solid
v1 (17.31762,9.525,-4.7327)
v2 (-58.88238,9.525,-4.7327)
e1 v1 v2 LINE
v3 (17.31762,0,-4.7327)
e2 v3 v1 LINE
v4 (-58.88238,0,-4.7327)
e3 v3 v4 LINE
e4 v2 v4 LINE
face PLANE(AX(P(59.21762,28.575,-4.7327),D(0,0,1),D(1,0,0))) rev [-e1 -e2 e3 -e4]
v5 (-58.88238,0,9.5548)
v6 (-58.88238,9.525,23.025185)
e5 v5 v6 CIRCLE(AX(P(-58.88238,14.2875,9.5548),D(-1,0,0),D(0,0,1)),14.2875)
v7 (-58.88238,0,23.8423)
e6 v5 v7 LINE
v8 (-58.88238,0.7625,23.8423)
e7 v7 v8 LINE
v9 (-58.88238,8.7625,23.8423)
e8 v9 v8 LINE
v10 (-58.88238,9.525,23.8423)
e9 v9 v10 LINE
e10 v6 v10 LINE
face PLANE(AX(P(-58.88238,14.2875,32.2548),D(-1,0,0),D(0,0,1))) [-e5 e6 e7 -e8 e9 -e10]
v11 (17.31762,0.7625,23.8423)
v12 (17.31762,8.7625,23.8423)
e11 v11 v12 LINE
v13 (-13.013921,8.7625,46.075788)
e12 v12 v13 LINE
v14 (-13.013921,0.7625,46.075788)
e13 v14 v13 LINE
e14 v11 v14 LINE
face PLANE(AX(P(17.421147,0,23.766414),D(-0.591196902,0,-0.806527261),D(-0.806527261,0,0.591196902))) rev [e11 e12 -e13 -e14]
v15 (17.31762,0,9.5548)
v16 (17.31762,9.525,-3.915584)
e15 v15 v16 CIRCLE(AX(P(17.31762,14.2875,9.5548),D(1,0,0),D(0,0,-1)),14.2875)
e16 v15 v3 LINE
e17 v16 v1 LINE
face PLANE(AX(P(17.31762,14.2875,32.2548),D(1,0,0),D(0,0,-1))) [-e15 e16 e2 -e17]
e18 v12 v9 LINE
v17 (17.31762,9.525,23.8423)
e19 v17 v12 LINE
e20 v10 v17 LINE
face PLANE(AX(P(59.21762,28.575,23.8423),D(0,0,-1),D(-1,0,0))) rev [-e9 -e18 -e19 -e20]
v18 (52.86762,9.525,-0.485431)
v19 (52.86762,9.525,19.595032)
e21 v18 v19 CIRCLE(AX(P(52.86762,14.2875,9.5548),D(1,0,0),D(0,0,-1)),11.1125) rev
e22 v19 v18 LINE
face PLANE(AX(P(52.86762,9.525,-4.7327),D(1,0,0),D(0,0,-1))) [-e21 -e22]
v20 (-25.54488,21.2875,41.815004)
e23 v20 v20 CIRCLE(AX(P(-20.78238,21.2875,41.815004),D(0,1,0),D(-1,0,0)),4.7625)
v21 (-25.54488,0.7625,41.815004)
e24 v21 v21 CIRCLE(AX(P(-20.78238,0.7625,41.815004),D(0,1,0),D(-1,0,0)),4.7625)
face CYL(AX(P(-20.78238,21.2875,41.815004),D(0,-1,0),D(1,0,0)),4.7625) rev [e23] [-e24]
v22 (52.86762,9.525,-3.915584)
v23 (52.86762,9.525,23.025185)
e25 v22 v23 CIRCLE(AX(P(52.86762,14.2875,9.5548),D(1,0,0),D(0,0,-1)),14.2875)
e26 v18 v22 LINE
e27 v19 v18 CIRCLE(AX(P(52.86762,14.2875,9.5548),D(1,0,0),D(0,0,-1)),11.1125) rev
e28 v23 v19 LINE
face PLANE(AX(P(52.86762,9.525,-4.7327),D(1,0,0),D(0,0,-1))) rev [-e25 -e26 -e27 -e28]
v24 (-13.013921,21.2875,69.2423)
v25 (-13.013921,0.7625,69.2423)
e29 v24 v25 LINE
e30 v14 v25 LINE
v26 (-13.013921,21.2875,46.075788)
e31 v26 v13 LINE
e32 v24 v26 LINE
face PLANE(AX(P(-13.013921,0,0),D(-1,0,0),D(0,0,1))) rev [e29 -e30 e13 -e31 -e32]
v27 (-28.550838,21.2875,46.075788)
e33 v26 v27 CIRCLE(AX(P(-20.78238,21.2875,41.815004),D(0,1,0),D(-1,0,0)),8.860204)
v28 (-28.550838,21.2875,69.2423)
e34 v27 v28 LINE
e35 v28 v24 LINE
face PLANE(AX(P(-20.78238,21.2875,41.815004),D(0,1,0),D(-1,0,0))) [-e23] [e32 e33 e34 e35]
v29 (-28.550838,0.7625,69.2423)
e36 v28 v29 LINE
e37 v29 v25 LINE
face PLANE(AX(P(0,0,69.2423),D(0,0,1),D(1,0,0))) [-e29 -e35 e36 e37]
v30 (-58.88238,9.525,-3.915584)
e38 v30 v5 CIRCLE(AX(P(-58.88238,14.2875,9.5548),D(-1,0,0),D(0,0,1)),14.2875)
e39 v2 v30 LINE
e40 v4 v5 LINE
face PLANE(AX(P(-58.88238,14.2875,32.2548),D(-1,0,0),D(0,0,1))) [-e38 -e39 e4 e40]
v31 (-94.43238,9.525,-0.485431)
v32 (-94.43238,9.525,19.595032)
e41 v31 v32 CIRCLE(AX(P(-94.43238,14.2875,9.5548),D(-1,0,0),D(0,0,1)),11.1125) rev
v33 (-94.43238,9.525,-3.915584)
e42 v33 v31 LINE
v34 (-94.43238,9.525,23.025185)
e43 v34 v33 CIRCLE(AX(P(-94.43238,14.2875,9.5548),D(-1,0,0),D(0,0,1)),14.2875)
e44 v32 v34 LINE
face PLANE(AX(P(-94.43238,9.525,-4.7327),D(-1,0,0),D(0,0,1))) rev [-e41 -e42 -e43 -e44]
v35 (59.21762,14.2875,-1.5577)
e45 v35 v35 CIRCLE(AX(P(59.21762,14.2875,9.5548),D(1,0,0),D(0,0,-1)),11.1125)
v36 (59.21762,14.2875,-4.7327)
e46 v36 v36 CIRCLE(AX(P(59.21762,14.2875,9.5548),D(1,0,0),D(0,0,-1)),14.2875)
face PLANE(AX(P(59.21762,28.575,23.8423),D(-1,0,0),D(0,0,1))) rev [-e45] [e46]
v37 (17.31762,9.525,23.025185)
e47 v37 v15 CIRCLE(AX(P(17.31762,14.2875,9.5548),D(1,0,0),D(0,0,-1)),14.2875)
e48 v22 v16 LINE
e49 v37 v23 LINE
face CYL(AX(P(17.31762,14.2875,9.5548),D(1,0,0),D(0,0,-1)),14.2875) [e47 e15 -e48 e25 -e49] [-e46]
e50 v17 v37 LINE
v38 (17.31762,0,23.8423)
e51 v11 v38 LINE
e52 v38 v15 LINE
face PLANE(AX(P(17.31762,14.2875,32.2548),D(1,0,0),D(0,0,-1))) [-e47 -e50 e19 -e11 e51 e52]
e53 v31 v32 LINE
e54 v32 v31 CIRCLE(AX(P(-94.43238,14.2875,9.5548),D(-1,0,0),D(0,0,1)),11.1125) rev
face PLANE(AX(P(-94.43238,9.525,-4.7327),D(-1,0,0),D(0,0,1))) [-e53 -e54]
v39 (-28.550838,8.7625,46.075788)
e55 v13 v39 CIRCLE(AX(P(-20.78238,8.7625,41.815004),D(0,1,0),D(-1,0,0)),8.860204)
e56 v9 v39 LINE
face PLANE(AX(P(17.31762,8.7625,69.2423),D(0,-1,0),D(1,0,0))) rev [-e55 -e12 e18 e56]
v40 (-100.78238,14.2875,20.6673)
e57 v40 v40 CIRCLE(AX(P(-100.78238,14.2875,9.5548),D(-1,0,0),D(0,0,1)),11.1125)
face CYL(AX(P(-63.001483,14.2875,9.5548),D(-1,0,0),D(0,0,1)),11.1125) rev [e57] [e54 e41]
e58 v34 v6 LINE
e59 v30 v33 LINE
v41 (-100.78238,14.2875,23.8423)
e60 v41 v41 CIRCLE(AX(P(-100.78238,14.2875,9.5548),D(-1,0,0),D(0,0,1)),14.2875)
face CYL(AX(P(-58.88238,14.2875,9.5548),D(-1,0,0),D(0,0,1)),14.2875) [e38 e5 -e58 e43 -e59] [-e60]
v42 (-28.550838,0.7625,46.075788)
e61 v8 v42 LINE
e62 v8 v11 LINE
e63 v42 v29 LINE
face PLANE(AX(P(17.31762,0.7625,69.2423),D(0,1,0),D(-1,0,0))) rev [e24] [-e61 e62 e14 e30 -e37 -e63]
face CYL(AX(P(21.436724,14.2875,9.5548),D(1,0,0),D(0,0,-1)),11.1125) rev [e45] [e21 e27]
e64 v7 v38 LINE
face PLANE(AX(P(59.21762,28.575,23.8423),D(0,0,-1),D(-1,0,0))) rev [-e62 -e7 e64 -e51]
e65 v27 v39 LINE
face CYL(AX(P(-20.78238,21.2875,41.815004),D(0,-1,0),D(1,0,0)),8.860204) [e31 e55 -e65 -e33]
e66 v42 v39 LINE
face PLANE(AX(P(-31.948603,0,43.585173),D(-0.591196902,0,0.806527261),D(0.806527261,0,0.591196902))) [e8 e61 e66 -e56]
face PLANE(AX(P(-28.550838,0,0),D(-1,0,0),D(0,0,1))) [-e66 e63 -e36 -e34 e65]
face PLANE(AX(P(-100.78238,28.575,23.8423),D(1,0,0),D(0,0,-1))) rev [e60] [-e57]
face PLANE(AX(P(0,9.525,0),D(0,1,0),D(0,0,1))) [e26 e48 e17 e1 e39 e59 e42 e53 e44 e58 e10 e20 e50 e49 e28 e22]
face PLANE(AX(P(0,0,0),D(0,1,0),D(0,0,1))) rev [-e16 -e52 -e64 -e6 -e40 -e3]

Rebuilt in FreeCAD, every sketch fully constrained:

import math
import FreeCAD as App
import Part
import Sketcher
Q = App.Units.Quantity

doc = App.newDocument("Part")
params = doc.addObject("Spreadsheet::Sheet", "Params")
for row, (alias, value) in enumerate([
    ("sketch1_height", "1.125 in"),
    ("pad1_length", "1.125 in"),
    ("sketch2_height", "1.125 in"),
    ("pocket1_length", "0.75 in"),
    ("sketch3_width", "3 in"),
    ("pad2_length", "45.4 mm"),
    ("sketch5_diameter", "0.375 in"),
    ("pad3_length", "12.525 mm"),
    ("sketch6_diameter", "0.375 in"),
    ("sketch7_diameter", "1.125 in"),
    ("pocket4_length", "41.9 mm"),
    ("sketch8_diameter", "1.125 in"),
    ("pocket5_length", "41.9 mm"),
    ("sketch9_diameter", "0.875 in"),
    ("pocket6_length", "0.25 in"),
    ("sketch10_diameter", "0.875 in"),
    ("pocket7_length", "0.25 in"),
], start=1):
    params.set(f"A{row}", alias)
    params.set(f"B{row}", "=" + value)
    params.setAlias(f"B{row}", alias)

body = doc.addObject("PartDesign::Body", "Body")

sketch1 = body.newObject("Sketcher::SketchObject", "Sketch")
sketch1.AttachmentSupport = (doc.getObject("XZ_Plane"), [""])
sketch1.MapMode = "FlatFace"
sketch1.addGeometry(Part.LineSegment(App.Vector(-101, -5, 0), App.Vector(-101, 24, 0)), False)
sketch1.addGeometry(Part.LineSegment(App.Vector(-101, 24, 0), App.Vector(59, 24, 0)), False)
sketch1.addGeometry(Part.LineSegment(App.Vector(59, 24, 0), App.Vector(59, -5, 0)), False)
sketch1.addGeometry(Part.LineSegment(App.Vector(59, -5, 0), App.Vector(-101, -5, 0)), False)
sketch1.addConstraint(Sketcher.Constraint("Coincident", 0, 2, 1, 1))
sketch1.addConstraint(Sketcher.Constraint("Coincident", 1, 2, 2, 1))
sketch1.addConstraint(Sketcher.Constraint("Coincident", 2, 2, 3, 1))
sketch1.addConstraint(Sketcher.Constraint("Coincident", 3, 2, 0, 1))
sketch1.addConstraint(Sketcher.Constraint("Vertical", 0))
sketch1.addConstraint(Sketcher.Constraint("Horizontal", 1))
sketch1.addConstraint(Sketcher.Constraint("Vertical", 2))
sketch1.addConstraint(Sketcher.Constraint("Horizontal", 3))
sketch1.addConstraint(Sketcher.Constraint("DistanceY", 0, 1, 0, 2, Q("1.125 in")))
sketch1.addConstraint(Sketcher.Constraint("DistanceX", 1, 1, 1, 2, 160.0))
sketch1.addConstraint(Sketcher.Constraint("DistanceY", -1, 1, 0, 2, 23.8423))
sketch1.addConstraint(Sketcher.Constraint("DistanceX", 0, 2, -1, 1, 100.78238))
sketch1.setExpression("Constraints[8]", "Params.sketch1_height")
pad1 = body.newObject("PartDesign::Pad", "Pad")
pad1.Profile = sketch1
pad1.setExpression("Length", "Params.pad1_length")
pad1.Reversed = True

sketch2 = body.newObject("Sketcher::SketchObject", "Sketch001")
sketch2.AttachmentSupport = (doc.getObject("XZ_Plane"), [""])
sketch2.MapMode = "FlatFace"
sketch2.AttachmentOffset = App.Placement(App.Vector(0, 0, -1.125 * 25.4), App.Rotation())
sketch2.addGeometry(Part.LineSegment(App.Vector(-94, -5, 0), App.Vector(-94, 24, 0)), False)
sketch2.addGeometry(Part.LineSegment(App.Vector(-94, 24, 0), App.Vector(53, 24, 0)), False)
sketch2.addGeometry(Part.LineSegment(App.Vector(53, 24, 0), App.Vector(53, -5, 0)), False)
sketch2.addGeometry(Part.LineSegment(App.Vector(53, -5, 0), App.Vector(-94, -5, 0)), False)
sketch2.addConstraint(Sketcher.Constraint("Coincident", 0, 2, 1, 1))
sketch2.addConstraint(Sketcher.Constraint("Coincident", 1, 2, 2, 1))
sketch2.addConstraint(Sketcher.Constraint("Coincident", 2, 2, 3, 1))
sketch2.addConstraint(Sketcher.Constraint("Coincident", 3, 2, 0, 1))
sketch2.addConstraint(Sketcher.Constraint("Vertical", 0))
sketch2.addConstraint(Sketcher.Constraint("Horizontal", 1))
sketch2.addConstraint(Sketcher.Constraint("Vertical", 2))
sketch2.addConstraint(Sketcher.Constraint("Horizontal", 3))
sketch2.addConstraint(Sketcher.Constraint("DistanceY", 0, 1, 0, 2, Q("1.125 in")))
sketch2.addConstraint(Sketcher.Constraint("DistanceX", 1, 1, 1, 2, 147.3))
sketch2.addConstraint(Sketcher.Constraint("DistanceY", -1, 1, 0, 2, 23.8423))
sketch2.addConstraint(Sketcher.Constraint("DistanceX", 0, 2, -1, 1, 94.43238))
sketch2.setExpression("Constraints[8]", "Params.sketch2_height")
pocket1 = body.newObject("PartDesign::Pocket", "Pocket")
pocket1.Profile = sketch2
pocket1.setExpression("Length", "Params.pocket1_length")
pocket1.Reversed = True

sketch3 = body.newObject("Sketcher::SketchObject", "Sketch002")
sketch3.AttachmentSupport = (doc.getObject("XY_Plane"), [""])
sketch3.MapMode = "FlatFace"
sketch3.AttachmentOffset = App.Placement(App.Vector(0, 0, 23.8423), App.Rotation())
sketch3.addGeometry(Part.LineSegment(App.Vector(-59, 9, 0), App.Vector(-59, 1, 0)), False)
sketch3.addGeometry(Part.LineSegment(App.Vector(-59, 1, 0), App.Vector(17, 1, 0)), False)
sketch3.addGeometry(Part.LineSegment(App.Vector(17, 1, 0), App.Vector(17, 9, 0)), False)
sketch3.addGeometry(Part.LineSegment(App.Vector(17, 9, 0), App.Vector(-59, 9, 0)), False)
sketch3.addConstraint(Sketcher.Constraint("Coincident", 0, 2, 1, 1))
sketch3.addConstraint(Sketcher.Constraint("Coincident", 1, 2, 2, 1))
sketch3.addConstraint(Sketcher.Constraint("Coincident", 2, 2, 3, 1))
sketch3.addConstraint(Sketcher.Constraint("Coincident", 3, 2, 0, 1))
sketch3.addConstraint(Sketcher.Constraint("Vertical", 0))
sketch3.addConstraint(Sketcher.Constraint("Horizontal", 1))
sketch3.addConstraint(Sketcher.Constraint("Vertical", 2))
sketch3.addConstraint(Sketcher.Constraint("Horizontal", 3))
sketch3.addConstraint(Sketcher.Constraint("DistanceX", 1, 1, 1, 2, Q("3 in")))
sketch3.addConstraint(Sketcher.Constraint("DistanceY", 0, 2, 0, 1, 8.0))
sketch3.addConstraint(Sketcher.Constraint("DistanceY", -1, 1, 0, 2, 0.7625))
sketch3.addConstraint(Sketcher.Constraint("DistanceX", 0, 2, -1, 1, 58.88238))
sketch3.setExpression("Constraints[8]", "Params.sketch3_width")
pad2 = body.newObject("PartDesign::Pad", "Pad001")
pad2.Profile = sketch3
pad2.setExpression("Length", "Params.pad2_length")

sketch4 = body.newObject("Sketcher::SketchObject", "Sketch003")
sketch4.AttachmentSupport = (doc.getObject("XZ_Plane"), [""])
sketch4.MapMode = "FlatFace"
sketch4.AttachmentOffset = App.Placement(App.Vector(0, 0, -8.7625), App.Rotation())
sketch4.addGeometry(Part.LineSegment(App.Vector(-13, 46, 0), App.Vector(-13, 69, 0)), False)
sketch4.addGeometry(Part.LineSegment(App.Vector(-13, 69, 0), App.Vector(17, 69, 0)), False)
sketch4.addGeometry(Part.LineSegment(App.Vector(17, 69, 0), App.Vector(17, 24, 0)), False)
sketch4.addGeometry(Part.LineSegment(App.Vector(17, 24, 0), App.Vector(-13, 46, 0)), False)
sketch4.addGeometry(Part.LineSegment(App.Vector(-29, 69, 0), App.Vector(-29, 46, 0)), False)
sketch4.addGeometry(Part.LineSegment(App.Vector(-29, 46, 0), App.Vector(-59, 24, 0)), False)
sketch4.addGeometry(Part.LineSegment(App.Vector(-59, 24, 0), App.Vector(-59, 69, 0)), False)
sketch4.addGeometry(Part.LineSegment(App.Vector(-59, 69, 0), App.Vector(-29, 69, 0)), False)
sketch4.addConstraint(Sketcher.Constraint("Coincident", 0, 2, 1, 1))
sketch4.addConstraint(Sketcher.Constraint("Coincident", 1, 2, 2, 1))
sketch4.addConstraint(Sketcher.Constraint("Coincident", 2, 2, 3, 1))
sketch4.addConstraint(Sketcher.Constraint("Coincident", 3, 2, 0, 1))
sketch4.addConstraint(Sketcher.Constraint("Coincident", 4, 2, 5, 1))
sketch4.addConstraint(Sketcher.Constraint("Coincident", 5, 2, 6, 1))
sketch4.addConstraint(Sketcher.Constraint("Coincident", 6, 2, 7, 1))
sketch4.addConstraint(Sketcher.Constraint("Coincident", 7, 2, 4, 1))
sketch4.addConstraint(Sketcher.Constraint("Vertical", 0))
sketch4.addConstraint(Sketcher.Constraint("Horizontal", 1))
sketch4.addConstraint(Sketcher.Constraint("Vertical", 2))
sketch4.addConstraint(Sketcher.Constraint("Vertical", 4))
sketch4.addConstraint(Sketcher.Constraint("Vertical", 6))
sketch4.addConstraint(Sketcher.Constraint("Horizontal", 7))
sketch4.addConstraint(Sketcher.Constraint("Horizontal", 3, 2, 4, 2))
sketch4.addConstraint(Sketcher.Constraint("Horizontal", 2, 2, 5, 2))
sketch4.addConstraint(Sketcher.Constraint("Horizontal", 1, 2, 6, 2))
sketch4.addConstraint(Sketcher.Constraint("Equal", 1, 7))
sketch4.addConstraint(Sketcher.Constraint("DistanceX", 5, 2, 2, 2, Q("3 in")))
sketch4.addConstraint(Sketcher.Constraint("DistanceY", 2, 2, 2, 1, 45.4))
sketch4.addConstraint(Sketcher.Constraint("DistanceX", 1, 1, 1, 2, 30.331542))
sketch4.addConstraint(Sketcher.Constraint("DistanceY", -1, 1, 0, 2, 69.2423))
sketch4.addConstraint(Sketcher.Constraint("DistanceY", 0, 1, 0, 2, 23.166513))
sketch4.addConstraint(Sketcher.Constraint("DistanceX", 0, 2, -1, 1, 13.013921))
pocket2 = body.newObject("PartDesign::Pocket", "Pocket001")
pocket2.Profile = sketch4
pocket2.Type = "ThroughAll"
pocket2.Reversed = True

sketch5 = body.newObject("Sketcher::SketchObject", "Sketch004")
sketch5.AttachmentSupport = (doc.getObject("XZ_Plane"), [""])
sketch5.MapMode = "FlatFace"
sketch5.AttachmentOffset = App.Placement(App.Vector(0, 0, -8.7625), App.Rotation())
sketch5.addGeometry(Part.LineSegment(App.Vector(-28.6, 46.1, 0), App.Vector(-28.6, 69.2, 0)), False)
sketch5.addGeometry(Part.LineSegment(App.Vector(-28.6, 69.2, 0), App.Vector(-13, 69.2, 0)), False)
sketch5.addGeometry(Part.LineSegment(App.Vector(-13, 69.2, 0), App.Vector(-13, 46.1, 0)), False)
sketch5.addGeometry(Part.ArcOfCircle(Part.Circle(App.Vector(-20.8, 41.8, 0), App.Vector(0, 0, 1), 8.9), math.radians(151), math.radians(389)), False)
sketch5.addGeometry(Part.Circle(App.Vector(-20.8, 41.8, 0), App.Vector(0, 0, 1), 4.8), False)
sketch5.addConstraint(Sketcher.Constraint("Coincident", 0, 2, 1, 1))
sketch5.addConstraint(Sketcher.Constraint("Coincident", 1, 2, 2, 1))
sketch5.addConstraint(Sketcher.Constraint("Coincident", 2, 2, 3, 2))
sketch5.addConstraint(Sketcher.Constraint("Coincident", 3, 1, 0, 1))
sketch5.addConstraint(Sketcher.Constraint("Vertical", 0))
sketch5.addConstraint(Sketcher.Constraint("Horizontal", 1))
sketch5.addConstraint(Sketcher.Constraint("Vertical", 2))
sketch5.addConstraint(Sketcher.Constraint("Coincident", 4, 3, 3, 3))
sketch5.addConstraint(Sketcher.Constraint("Horizontal", 2, 2, 3, 1))
sketch5.addConstraint(Sketcher.Constraint("Diameter", 4, Q("0.375 in")))
sketch5.addConstraint(Sketcher.Constraint("Radius", 3, 8.860204))
sketch5.addConstraint(Sketcher.Constraint("DistanceY", -1, 1, 0, 2, 69.2423))
sketch5.addConstraint(Sketcher.Constraint("DistanceX", 1, 1, 1, 2, 15.536917))
sketch5.addConstraint(Sketcher.Constraint("DistanceY", 0, 1, 0, 2, 23.166513))
sketch5.addConstraint(Sketcher.Constraint("DistanceX", 3, 3, -1, 1, 20.78238))
sketch5.setExpression("Constraints[9]", "Params.sketch5_diameter")
pad3 = body.newObject("PartDesign::Pad", "Pad002")
pad3.Profile = sketch5
pad3.setExpression("Length", "Params.pad3_length")
pad3.Reversed = True

sketch6 = body.newObject("Sketcher::SketchObject", "Sketch005")
sketch6.AttachmentSupport = (doc.getObject("XZ_Plane"), [""])
sketch6.MapMode = "FlatFace"
sketch6.AttachmentOffset = App.Placement(App.Vector(0, 0, -8.7625), App.Rotation())
sketch6.addGeometry(Part.Circle(App.Vector(-20.8, 41.8, 0), App.Vector(0, 0, 1), 4.8), False)
sketch6.addConstraint(Sketcher.Constraint("Diameter", 0, Q("0.375 in")))
sketch6.addConstraint(Sketcher.Constraint("DistanceX", 0, 3, -1, 1, 20.78238))
sketch6.addConstraint(Sketcher.Constraint("DistanceY", -1, 1, 0, 3, 41.815004))
sketch6.setExpression("Constraints[0]", "Params.sketch6_diameter")
pocket3 = body.newObject("PartDesign::Pocket", "Pocket002")
pocket3.Profile = sketch6
pocket3.Type = "ThroughAll"
pocket3.Reversed = True

sketch7 = body.newObject("Sketcher::SketchObject", "Sketch006")
sketch7.AttachmentSupport = (doc.getObject("YZ_Plane"), [""])
sketch7.MapMode = "FlatFace"
sketch7.AttachmentOffset = App.Placement(App.Vector(0, 0, 17.31762), App.Rotation())
sketch7.addGeometry(Part.LineSegment(App.Vector(47, 88, 0), App.Vector(-19, 88, 0)), False)
sketch7.addGeometry(Part.LineSegment(App.Vector(-19, 88, 0), App.Vector(-19, -24, 0)), False)
sketch7.addGeometry(Part.LineSegment(App.Vector(-19, -24, 0), App.Vector(47, -24, 0)), False)
sketch7.addGeometry(Part.LineSegment(App.Vector(47, -24, 0), App.Vector(47, 88, 0)), False)
sketch7.addGeometry(Part.Circle(App.Vector(14, 10, 0), App.Vector(0, 0, 1), 14), False)
sketch7.addConstraint(Sketcher.Constraint("Coincident", 0, 2, 1, 1))
sketch7.addConstraint(Sketcher.Constraint("Coincident", 1, 2, 2, 1))
sketch7.addConstraint(Sketcher.Constraint("Coincident", 2, 2, 3, 1))
sketch7.addConstraint(Sketcher.Constraint("Coincident", 3, 2, 0, 1))
sketch7.addConstraint(Sketcher.Constraint("Horizontal", 0))
sketch7.addConstraint(Sketcher.Constraint("Vertical", 1))
sketch7.addConstraint(Sketcher.Constraint("Horizontal", 2))
sketch7.addConstraint(Sketcher.Constraint("Vertical", 3))
sketch7.addConstraint(Sketcher.Constraint("Diameter", 4, Q("1.125 in")))
sketch7.addConstraint(Sketcher.Constraint("DistanceX", -1, 1, 4, 3, Q("0.5625 in")))
sketch7.addConstraint(Sketcher.Constraint("DistanceX", 0, 2, 0, 1, 66.289))
sketch7.addConstraint(Sketcher.Constraint("DistanceY", 1, 2, 1, 1, 111.689))
sketch7.addConstraint(Sketcher.Constraint("DistanceY", -1, 1, 4, 3, 9.5548))
sketch7.addConstraint(Sketcher.Constraint("DistanceX", 0, 2, -1, 1, 18.857))
sketch7.addConstraint(Sketcher.Constraint("DistanceY", -1, 1, 0, 2, 88.099))
sketch7.setExpression("Constraints[8]", "Params.sketch7_diameter")
pocket4 = body.newObject("PartDesign::Pocket", "Pocket003")
pocket4.Profile = sketch7
pocket4.setExpression("Length", "Params.pocket4_length")
pocket4.Reversed = True

sketch8 = body.newObject("Sketcher::SketchObject", "Sketch007")
sketch8.AttachmentSupport = (doc.getObject("YZ_Plane"), [""])
sketch8.MapMode = "FlatFace"
sketch8.AttachmentOffset = App.Placement(App.Vector(0, 0, -58.88238), App.Rotation())
sketch8.addGeometry(Part.LineSegment(App.Vector(47, -24, 0), App.Vector(-19, -24, 0)), False)
sketch8.addGeometry(Part.LineSegment(App.Vector(-19, -24, 0), App.Vector(-19, 88, 0)), False)
sketch8.addGeometry(Part.LineSegment(App.Vector(-19, 88, 0), App.Vector(47, 88, 0)), False)
sketch8.addGeometry(Part.LineSegment(App.Vector(47, 88, 0), App.Vector(47, -24, 0)), False)
sketch8.addGeometry(Part.Circle(App.Vector(14, 10, 0), App.Vector(0, 0, 1), 14), False)
sketch8.addConstraint(Sketcher.Constraint("Coincident", 0, 2, 1, 1))
sketch8.addConstraint(Sketcher.Constraint("Coincident", 1, 2, 2, 1))
sketch8.addConstraint(Sketcher.Constraint("Coincident", 2, 2, 3, 1))
sketch8.addConstraint(Sketcher.Constraint("Coincident", 3, 2, 0, 1))
sketch8.addConstraint(Sketcher.Constraint("Horizontal", 0))
sketch8.addConstraint(Sketcher.Constraint("Vertical", 1))
sketch8.addConstraint(Sketcher.Constraint("Horizontal", 2))
sketch8.addConstraint(Sketcher.Constraint("Vertical", 3))
sketch8.addConstraint(Sketcher.Constraint("Diameter", 4, Q("1.125 in")))
sketch8.addConstraint(Sketcher.Constraint("DistanceX", -1, 1, 4, 3, Q("0.5625 in")))
sketch8.addConstraint(Sketcher.Constraint("DistanceX", 0, 2, 0, 1, 66.289))
sketch8.addConstraint(Sketcher.Constraint("DistanceY", 1, 1, 1, 2, 111.689))
sketch8.addConstraint(Sketcher.Constraint("DistanceY", -1, 1, 4, 3, 9.5548))
sketch8.addConstraint(Sketcher.Constraint("DistanceX", 0, 2, -1, 1, 18.857))
sketch8.addConstraint(Sketcher.Constraint("DistanceY", 0, 2, -1, 1, 23.59))
sketch8.setExpression("Constraints[8]", "Params.sketch8_diameter")
pocket5 = body.newObject("PartDesign::Pocket", "Pocket004")
pocket5.Profile = sketch8
pocket5.setExpression("Length", "Params.pocket5_length")

sketch9 = body.newObject("Sketcher::SketchObject", "Sketch008")
sketch9.AttachmentSupport = (doc.getObject("YZ_Plane"), [""])
sketch9.MapMode = "FlatFace"
sketch9.AttachmentOffset = App.Placement(App.Vector(0, 0, 59.21762), App.Rotation())
sketch9.addGeometry(Part.Circle(App.Vector(14, 10, 0), App.Vector(0, 0, 1), 11), False)
sketch9.addConstraint(Sketcher.Constraint("Diameter", 0, Q("0.875 in")))
sketch9.addConstraint(Sketcher.Constraint("DistanceX", -1, 1, 0, 3, Q("0.5625 in")))
sketch9.addConstraint(Sketcher.Constraint("DistanceY", -1, 1, 0, 3, 9.5548))
sketch9.setExpression("Constraints[0]", "Params.sketch9_diameter")
pocket6 = body.newObject("PartDesign::Pocket", "Pocket005")
pocket6.Profile = sketch9
pocket6.setExpression("Length", "Params.pocket6_length")

sketch10 = body.newObject("Sketcher::SketchObject", "Sketch009")
sketch10.AttachmentSupport = (doc.getObject("YZ_Plane"), [""])
sketch10.MapMode = "FlatFace"
sketch10.AttachmentOffset = App.Placement(App.Vector(0, 0, -94.43238), App.Rotation())
sketch10.addGeometry(Part.Circle(App.Vector(14, 10, 0), App.Vector(0, 0, 1), 11), False)
sketch10.addConstraint(Sketcher.Constraint("Diameter", 0, Q("0.875 in")))
sketch10.addConstraint(Sketcher.Constraint("DistanceX", -1, 1, 0, 3, Q("0.5625 in")))
sketch10.addConstraint(Sketcher.Constraint("DistanceY", -1, 1, 0, 3, 9.5548))
sketch10.setExpression("Constraints[0]", "Params.sketch10_diameter")
pocket7 = body.newObject("PartDesign::Pocket", "Pocket006")
pocket7.Profile = sketch10
pocket7.setExpression("Length", "Params.pocket7_length")

doc.recompute()
